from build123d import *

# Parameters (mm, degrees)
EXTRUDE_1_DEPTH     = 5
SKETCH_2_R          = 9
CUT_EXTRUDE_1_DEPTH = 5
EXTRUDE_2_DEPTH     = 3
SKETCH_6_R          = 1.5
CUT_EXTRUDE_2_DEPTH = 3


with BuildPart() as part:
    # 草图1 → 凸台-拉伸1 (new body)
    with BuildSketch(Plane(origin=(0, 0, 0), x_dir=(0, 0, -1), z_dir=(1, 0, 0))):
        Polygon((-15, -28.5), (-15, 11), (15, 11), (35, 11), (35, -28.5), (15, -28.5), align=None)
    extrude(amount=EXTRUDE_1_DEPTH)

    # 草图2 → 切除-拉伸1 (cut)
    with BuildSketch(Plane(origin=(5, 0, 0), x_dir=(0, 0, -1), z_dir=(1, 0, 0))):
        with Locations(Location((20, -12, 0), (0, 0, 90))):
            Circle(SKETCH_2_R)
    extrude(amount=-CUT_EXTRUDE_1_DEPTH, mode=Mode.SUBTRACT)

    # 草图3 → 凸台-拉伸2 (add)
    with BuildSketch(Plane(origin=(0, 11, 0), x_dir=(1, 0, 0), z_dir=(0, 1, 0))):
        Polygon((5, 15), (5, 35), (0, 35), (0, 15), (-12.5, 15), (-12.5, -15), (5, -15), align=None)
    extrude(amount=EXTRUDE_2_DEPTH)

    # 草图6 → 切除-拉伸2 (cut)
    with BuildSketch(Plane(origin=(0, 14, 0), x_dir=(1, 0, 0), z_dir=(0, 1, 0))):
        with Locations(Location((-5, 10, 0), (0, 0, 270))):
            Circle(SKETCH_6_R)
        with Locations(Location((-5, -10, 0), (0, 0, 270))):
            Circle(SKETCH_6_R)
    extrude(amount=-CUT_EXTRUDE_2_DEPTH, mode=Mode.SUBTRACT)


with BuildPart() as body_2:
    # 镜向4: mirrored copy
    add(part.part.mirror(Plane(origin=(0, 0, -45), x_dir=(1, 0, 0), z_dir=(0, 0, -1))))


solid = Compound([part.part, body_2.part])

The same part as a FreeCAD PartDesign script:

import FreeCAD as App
import Part
import Sketcher
from FreeCAD import Vector
Q = App.Units.Quantity


def add_polygon(sketch, points):
    """Adds a closed chain of lines whose ends are joined by coincident constraints."""
    first, n = sketch.GeometryCount, len(points)
    for a, b in zip(points, points[1:] + points[:1]):
        sketch.addGeometry(Part.LineSegment(App.Vector(*a, 0), App.Vector(*b, 0)), False)
    for i in range(n):
        sketch.addConstraint(Sketcher.Constraint("Coincident", first + i, 2, first + (i + 1) % n, 1))

doc = App.newDocument("Part")
params = doc.addObject("Spreadsheet::Sheet", "Params")
for row, (alias, value) in enumerate([
    ("sketch1_height", "50 mm"),
    ("sketch1_width", "39.5 mm"),
    ("pad1_length", "5 mm"),
    ("sketch2_diameter", "18 mm"),
    ("pocket1_length", "5 mm"),
    ("sketch3_width", "5 mm"),
    ("sketch3_height", "20 mm"),
    ("sketch3_height2", "30 mm"),
    ("sketch3_width2", "12.5 mm"),
    ("pad2_length", "3 mm"),
    ("sketch4_diameter", "3 mm"),
    ("pocket2_length", "3 mm"),
], start=1):
    params.set(f"A{row}", alias)
    params.set(f"B{row}", "=" + value)
    params.setAlias(f"B{row}", alias)

body = doc.addObject("PartDesign::Body", "Body")

# Sketch on YZ plane
sketch1 = body.newObject("Sketcher::SketchObject", "Sketch")
sketch1.AttachmentSupport = (doc.getObject("YZ_Plane"), [""])
sketch1.MapMode = "FlatFace"
add_polygon(sketch1, [(11, 15), (-28, 15), (-28, -35), (11, -35)])  # lines 0-3
sketch1.addConstraint([
    Sketcher.Constraint("Horizontal", 0),
    Sketcher.Constraint("Vertical", 1),
    Sketcher.Constraint("Horizontal", 2),
    Sketcher.Constraint("Vertical", 3),
    Sketcher.Constraint("DistanceY", 1, 2, 1, 1, Q("50 mm")),
    Sketcher.Constraint("DistanceX", 0, 2, 0, 1, Q("39.5 mm")),
    Sketcher.Constraint("DistanceY", -1, 1, 0, 2, Q("15 mm")),
    Sketcher.Constraint("DistanceX", -1, 1, 2, 2, Q("11 mm")),
])
sketch1.setExpression("Constraints[8]", "Params.sketch1_height")
sketch1.setExpression("Constraints[9]", "Params.sketch1_width")
pad1 = body.newObject("PartDesign::Pad", "Pad")
pad1.Profile = sketch1
pad1.setExpression("Length", "Params.pad1_length")

# Sketch on YZ plane
sketch2 = body.newObject("Sketcher::SketchObject", "Sketch001")
sketch2.AttachmentSupport = (doc.getObject("YZ_Plane"), [""])
sketch2.MapMode = "FlatFace"
sketch2.AttachmentOffset = App.Placement(Vector(0, 0, 5), App.Rotation())
sketch2.addGeometry(Part.Circle(Vector(-12, -20, 0), Vector(0, 0, 1), 9), False)
sketch2.addConstraint([
    Sketcher.Constraint("Diameter", 0, Q("18 mm")),
    Sketcher.Constraint("DistanceX", 0, 3, -1, 1, Q("12 mm")),
    Sketcher.Constraint("DistanceY", 0, 3, -1, 1, Q("20 mm")),
])
sketch2.setExpression("Constraints[0]", "Params.sketch2_diameter")
pocket1 = body.newObject("PartDesign::Pocket", "Pocket")
pocket1.Profile = sketch2
pocket1.setExpression("Length", "Params.pocket1_length")

# Sketch on XZ plane
sketch3 = body.newObject("Sketcher::SketchObject", "Sketch002")
sketch3.AttachmentSupport = (doc.getObject("XZ_Plane"), [""])
sketch3.MapMode = "FlatFace"
sketch3.AttachmentOffset = App.Placement(Vector(0, 0, -11), App.Rotation())
add_polygon(sketch3, [(5, -35), (0, -35), (0, -15), (-12, -15), (-12, 15), (5, 15)])  # lines 0-5
sketch3.addConstraint([
    Sketcher.Constraint("Horizontal", 0),
    Sketcher.Constraint("Vertical", 1),
    Sketcher.Constraint("Horizontal", 2),
    Sketcher.Constraint("Vertical", 3),
    Sketcher.Constraint("Horizontal", 4),
    Sketcher.Constraint("Vertical", 5),
    Sketcher.Constraint("PointOnObject", 0, 2, -2),
    Sketcher.Constraint("DistanceX", 0, 2, 0, 1, Q("5 mm")),
    Sketcher.Constraint("DistanceY", 1, 1, 1, 2, Q("20 mm")),
    Sketcher.Constraint("DistanceY", 3, 1, 3, 2, Q("30 mm")),
    Sketcher.Constraint("DistanceX", 2, 2, 2, 1, Q("12.5 mm")),
    Sketcher.Constraint("DistanceY", 0, 2, -1, 1, Q("35 mm")),
])
sketch3.setExpression("Constraints[13]", "Params.sketch3_width")
sketch3.setExpression("Constraints[14]", "Params.sketch3_height")
sketch3.setExpression("Constraints[15]", "Params.sketch3_height2")
sketch3.setExpression("Constraints[16]", "Params.sketch3_width2")
pad2 = body.newObject("PartDesign::Pad", "Pad001")
pad2.Profile = sketch3
pad2.setExpression("Length", "Params.pad2_length")
pad2.Reversed = True

# Sketch on XZ plane
sketch4 = body.newObject("Sketcher::SketchObject", "Sketch003")
sketch4.AttachmentSupport = (doc.getObject("XZ_Plane"), [""])
sketch4.MapMode = "FlatFace"
sketch4.AttachmentOffset = App.Placement(Vector(0, 0, -14), App.Rotation())
sketch4.addGeometry([
    Part.Circle(Vector(-5, -10, 0), Vector(0, 0, 1), 1.5),
    Part.Circle(Vector(-5, 10, 0), Vector(0, 0, 1), 1.5),
], False)
sketch4.addConstraint([
    Sketcher.Constraint("Equal", 0, 1),
    Sketcher.Constraint("Symmetric", 0, 3, 1, 3, -1),
    Sketcher.Constraint("Diameter", 0, Q("3 mm")),
    Sketcher.Constraint("DistanceX", 0, 3, -1, 1, Q("5 mm")),
    Sketcher.Constraint("DistanceY", 0, 3, -1, 1, Q("10 mm")),
])
sketch4.setExpression("Constraints[2]", "Params.sketch4_diameter")
pocket2 = body.newObject("PartDesign::Pocket", "Pocket001")
pocket2.Profile = sketch4
pocket2.setExpression("Length", "Params.pocket2_length")
pocket2.Reversed = True
body2 = doc.addObject("PartDesign::Body", "Body001")
doc.recompute()

mirroring = doc.addObject("Part::Mirroring", "Mirroring")
mirroring.Source = body
mirroring.Base = Vector(0, 0, -45)
mirroring.Normal = Vector(0, 0, -1)
body2.BaseFeature = mirroring
doc.recompute()
mirroring.Visibility = False

doc.recompute()
